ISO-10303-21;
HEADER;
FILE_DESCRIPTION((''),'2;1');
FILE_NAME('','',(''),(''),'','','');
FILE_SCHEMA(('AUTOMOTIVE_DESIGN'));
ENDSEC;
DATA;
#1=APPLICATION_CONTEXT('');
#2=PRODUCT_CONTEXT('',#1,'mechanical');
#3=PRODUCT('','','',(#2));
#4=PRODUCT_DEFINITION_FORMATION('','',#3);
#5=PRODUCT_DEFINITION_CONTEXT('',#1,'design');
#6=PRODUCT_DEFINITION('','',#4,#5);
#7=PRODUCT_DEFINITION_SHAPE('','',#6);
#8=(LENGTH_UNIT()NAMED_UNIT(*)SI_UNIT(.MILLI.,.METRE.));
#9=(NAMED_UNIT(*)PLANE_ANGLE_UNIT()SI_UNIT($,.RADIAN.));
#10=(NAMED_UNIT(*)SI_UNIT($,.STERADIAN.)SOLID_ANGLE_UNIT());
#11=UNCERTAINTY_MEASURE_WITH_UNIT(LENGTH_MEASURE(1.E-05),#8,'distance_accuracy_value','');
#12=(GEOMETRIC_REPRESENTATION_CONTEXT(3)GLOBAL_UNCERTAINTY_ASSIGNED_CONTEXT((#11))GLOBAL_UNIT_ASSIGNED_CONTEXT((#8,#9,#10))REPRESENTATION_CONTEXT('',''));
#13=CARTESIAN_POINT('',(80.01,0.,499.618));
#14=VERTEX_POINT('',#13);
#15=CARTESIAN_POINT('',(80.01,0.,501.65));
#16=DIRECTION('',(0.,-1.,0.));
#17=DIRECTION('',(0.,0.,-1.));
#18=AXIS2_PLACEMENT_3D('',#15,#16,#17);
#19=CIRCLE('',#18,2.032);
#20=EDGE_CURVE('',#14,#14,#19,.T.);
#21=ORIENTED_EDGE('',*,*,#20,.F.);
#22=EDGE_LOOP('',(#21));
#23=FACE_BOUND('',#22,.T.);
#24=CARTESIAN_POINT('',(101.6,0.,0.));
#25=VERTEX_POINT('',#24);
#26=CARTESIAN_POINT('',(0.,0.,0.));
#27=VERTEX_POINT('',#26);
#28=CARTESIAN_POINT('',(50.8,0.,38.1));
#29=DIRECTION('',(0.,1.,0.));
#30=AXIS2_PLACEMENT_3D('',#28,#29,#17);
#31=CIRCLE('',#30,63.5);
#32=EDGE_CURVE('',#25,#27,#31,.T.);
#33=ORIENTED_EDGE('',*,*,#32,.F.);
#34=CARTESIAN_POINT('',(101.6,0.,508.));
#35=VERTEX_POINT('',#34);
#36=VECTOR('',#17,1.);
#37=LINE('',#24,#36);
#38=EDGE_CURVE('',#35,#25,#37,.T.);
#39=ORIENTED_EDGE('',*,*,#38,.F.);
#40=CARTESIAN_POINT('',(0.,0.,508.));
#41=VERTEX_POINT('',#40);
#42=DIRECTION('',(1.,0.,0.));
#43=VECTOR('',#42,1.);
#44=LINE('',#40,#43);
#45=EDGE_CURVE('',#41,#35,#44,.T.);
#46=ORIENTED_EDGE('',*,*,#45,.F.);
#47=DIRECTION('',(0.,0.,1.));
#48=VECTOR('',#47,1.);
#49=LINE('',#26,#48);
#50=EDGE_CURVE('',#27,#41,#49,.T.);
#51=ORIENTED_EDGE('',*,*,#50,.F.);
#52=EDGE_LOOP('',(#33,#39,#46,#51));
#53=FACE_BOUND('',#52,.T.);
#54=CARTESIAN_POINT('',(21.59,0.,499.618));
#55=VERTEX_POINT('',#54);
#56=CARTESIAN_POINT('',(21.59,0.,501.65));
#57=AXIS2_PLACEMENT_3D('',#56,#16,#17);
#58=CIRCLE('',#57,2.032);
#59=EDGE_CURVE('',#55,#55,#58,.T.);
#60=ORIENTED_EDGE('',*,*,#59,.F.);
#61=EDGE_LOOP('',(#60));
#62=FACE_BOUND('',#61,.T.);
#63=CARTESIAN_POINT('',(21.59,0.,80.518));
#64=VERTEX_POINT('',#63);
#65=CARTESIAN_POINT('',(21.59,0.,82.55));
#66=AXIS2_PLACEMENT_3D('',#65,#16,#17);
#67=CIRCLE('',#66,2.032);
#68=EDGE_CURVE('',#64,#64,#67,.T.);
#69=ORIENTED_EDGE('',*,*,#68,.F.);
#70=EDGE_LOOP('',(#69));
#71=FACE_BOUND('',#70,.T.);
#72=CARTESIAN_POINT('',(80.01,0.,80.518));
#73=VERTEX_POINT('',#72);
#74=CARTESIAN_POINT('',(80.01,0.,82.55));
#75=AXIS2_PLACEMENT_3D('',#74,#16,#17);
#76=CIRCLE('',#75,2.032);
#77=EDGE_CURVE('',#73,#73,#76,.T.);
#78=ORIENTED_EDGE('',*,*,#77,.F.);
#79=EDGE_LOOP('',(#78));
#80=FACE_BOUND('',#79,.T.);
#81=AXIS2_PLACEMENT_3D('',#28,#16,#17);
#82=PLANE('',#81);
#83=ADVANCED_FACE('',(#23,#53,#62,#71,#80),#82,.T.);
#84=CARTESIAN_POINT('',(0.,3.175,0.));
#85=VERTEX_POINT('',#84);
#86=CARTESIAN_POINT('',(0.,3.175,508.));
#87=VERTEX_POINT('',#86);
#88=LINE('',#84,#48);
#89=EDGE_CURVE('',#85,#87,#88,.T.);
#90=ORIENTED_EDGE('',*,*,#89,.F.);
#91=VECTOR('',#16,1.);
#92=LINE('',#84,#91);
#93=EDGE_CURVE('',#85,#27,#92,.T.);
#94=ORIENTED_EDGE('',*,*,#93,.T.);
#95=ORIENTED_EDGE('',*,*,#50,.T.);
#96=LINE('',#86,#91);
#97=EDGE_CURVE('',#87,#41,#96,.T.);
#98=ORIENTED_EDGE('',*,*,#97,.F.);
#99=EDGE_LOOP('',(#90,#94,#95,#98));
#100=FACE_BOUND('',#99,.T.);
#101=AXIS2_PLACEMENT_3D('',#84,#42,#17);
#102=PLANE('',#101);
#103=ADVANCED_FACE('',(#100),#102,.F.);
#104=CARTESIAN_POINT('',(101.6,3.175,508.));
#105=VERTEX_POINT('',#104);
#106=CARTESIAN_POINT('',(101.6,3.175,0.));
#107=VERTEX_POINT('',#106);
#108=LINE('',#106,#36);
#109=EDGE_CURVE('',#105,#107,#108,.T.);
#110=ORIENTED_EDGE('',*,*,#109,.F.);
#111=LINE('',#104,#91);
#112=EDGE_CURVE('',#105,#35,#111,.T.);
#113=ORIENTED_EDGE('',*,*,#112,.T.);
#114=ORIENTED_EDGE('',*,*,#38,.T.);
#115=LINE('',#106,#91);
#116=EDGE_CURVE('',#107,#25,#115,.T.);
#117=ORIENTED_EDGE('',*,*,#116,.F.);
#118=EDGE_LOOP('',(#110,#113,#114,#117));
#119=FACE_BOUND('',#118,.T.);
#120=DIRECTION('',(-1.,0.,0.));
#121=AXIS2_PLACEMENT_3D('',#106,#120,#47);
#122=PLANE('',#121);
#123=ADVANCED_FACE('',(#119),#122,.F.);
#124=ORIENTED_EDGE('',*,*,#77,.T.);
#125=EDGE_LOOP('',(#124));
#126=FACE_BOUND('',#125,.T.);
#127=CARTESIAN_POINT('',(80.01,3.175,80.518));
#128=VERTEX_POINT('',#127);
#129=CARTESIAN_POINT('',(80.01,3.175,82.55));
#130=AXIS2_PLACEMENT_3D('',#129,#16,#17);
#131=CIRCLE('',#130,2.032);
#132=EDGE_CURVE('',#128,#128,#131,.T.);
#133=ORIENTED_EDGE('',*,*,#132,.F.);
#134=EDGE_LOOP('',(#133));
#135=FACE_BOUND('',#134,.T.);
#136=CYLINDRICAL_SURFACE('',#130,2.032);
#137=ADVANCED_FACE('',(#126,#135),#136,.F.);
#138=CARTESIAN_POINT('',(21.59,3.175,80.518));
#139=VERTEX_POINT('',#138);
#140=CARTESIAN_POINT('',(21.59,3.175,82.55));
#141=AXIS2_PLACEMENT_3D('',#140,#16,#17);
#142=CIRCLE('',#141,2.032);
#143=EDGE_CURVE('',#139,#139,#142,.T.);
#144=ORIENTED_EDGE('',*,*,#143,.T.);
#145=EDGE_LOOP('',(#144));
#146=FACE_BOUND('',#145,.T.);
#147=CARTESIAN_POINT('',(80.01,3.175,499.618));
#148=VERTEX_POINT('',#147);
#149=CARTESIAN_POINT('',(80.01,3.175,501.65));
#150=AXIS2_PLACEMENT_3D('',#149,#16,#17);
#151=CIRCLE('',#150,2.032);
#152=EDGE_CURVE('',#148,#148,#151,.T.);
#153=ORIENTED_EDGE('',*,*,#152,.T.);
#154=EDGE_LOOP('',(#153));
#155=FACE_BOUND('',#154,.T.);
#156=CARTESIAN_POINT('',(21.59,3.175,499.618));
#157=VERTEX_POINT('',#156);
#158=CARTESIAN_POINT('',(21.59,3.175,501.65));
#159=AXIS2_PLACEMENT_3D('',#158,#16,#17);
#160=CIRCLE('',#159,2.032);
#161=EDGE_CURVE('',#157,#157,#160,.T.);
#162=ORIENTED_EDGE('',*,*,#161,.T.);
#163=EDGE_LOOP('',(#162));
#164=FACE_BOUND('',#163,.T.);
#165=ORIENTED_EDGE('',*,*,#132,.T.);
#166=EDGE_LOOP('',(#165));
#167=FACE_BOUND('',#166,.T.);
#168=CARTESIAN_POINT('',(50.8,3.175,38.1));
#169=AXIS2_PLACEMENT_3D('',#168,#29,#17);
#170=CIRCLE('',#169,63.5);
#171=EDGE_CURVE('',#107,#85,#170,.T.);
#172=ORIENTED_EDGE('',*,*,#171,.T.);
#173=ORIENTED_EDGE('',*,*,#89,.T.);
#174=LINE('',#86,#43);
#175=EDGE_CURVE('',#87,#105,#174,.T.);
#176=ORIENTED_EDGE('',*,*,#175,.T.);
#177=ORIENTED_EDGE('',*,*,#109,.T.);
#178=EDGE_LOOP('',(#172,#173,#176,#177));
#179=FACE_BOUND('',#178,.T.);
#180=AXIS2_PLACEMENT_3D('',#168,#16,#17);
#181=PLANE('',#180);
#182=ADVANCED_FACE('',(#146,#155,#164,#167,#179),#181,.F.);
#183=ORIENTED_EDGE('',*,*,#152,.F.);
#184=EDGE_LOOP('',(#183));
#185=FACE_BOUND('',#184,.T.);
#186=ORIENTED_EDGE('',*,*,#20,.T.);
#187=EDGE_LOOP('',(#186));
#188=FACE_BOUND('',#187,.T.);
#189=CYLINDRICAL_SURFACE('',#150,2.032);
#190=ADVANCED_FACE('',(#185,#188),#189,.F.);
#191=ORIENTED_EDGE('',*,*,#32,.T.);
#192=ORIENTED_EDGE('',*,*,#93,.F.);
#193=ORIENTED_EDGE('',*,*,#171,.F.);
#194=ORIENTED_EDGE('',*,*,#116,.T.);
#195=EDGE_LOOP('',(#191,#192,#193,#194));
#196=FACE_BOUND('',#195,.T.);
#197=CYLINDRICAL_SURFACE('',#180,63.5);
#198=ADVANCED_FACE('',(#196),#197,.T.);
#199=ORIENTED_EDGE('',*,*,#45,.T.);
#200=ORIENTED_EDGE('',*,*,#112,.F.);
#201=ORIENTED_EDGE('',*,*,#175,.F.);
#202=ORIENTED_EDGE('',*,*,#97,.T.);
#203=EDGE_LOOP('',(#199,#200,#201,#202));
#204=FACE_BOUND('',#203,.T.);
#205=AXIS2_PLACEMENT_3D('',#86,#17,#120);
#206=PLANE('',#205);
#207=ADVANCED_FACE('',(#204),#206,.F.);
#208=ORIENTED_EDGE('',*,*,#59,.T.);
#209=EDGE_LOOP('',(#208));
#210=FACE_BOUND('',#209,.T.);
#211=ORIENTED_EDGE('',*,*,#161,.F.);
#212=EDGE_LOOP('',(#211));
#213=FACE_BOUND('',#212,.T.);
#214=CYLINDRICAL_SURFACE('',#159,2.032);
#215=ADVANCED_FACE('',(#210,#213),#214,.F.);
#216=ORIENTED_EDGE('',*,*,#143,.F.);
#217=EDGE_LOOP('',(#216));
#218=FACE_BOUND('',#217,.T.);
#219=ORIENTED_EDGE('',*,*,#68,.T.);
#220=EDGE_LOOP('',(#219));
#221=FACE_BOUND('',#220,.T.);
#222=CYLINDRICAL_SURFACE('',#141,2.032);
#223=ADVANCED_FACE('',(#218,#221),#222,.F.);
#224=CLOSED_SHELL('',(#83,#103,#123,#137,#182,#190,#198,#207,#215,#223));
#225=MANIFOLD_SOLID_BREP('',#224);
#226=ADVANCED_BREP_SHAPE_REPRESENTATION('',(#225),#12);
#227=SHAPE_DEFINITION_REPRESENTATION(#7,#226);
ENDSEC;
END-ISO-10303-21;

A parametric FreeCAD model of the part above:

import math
import FreeCAD as App
import Part
import Sketcher
from FreeCAD import Vector
Q = App.Units.Quantity

doc = App.newDocument("Part")
body = doc.addObject("PartDesign::Body", "Body")

sketch1 = body.newObject("Sketcher::SketchObject", "Sketch")
sketch1.AttachmentSupport = (doc.getObject("XZ_Plane"), [""])
sketch1.MapMode = "FlatFace"
sketch1.addGeometry(Part.LineSegment(Vector(0, 0, 0), Vector(0, 508, 0)), False)
sketch1.addGeometry(Part.LineSegment(Vector(0, 508, 0), Vector(101.6, 508, 0)), False)
sketch1.addGeometry(Part.LineSegment(Vector(101.6, 508, 0), Vector(101.6, 0, 0)), False)
sketch1.addGeometry(Part.ArcOfCircle(Part.Circle(Vector(50.8, 38.1, 0), Vector(0, 0, 1), 63.5), math.radians(-143.130102), math.radians(-36.869898)), False)
sketch1.addConstraint(Sketcher.Constraint("Coincident", 0, 2, 1, 1))
sketch1.addConstraint(Sketcher.Constraint("Coincident", 1, 2, 2, 1))
sketch1.addConstraint(Sketcher.Constraint("Coincident", 2, 2, 3, 2))
sketch1.addConstraint(Sketcher.Constraint("Coincident", 3, 1, 0, 1))
sketch1.addConstraint(Sketcher.Constraint("Vertical", 0))
sketch1.addConstraint(Sketcher.Constraint("Horizontal", 1))
sketch1.addConstraint(Sketcher.Constraint("Vertical", 2))
sketch1.addConstraint(Sketcher.Constraint("Coincident", 3, 1, -1, 1))
sketch1.addConstraint(Sketcher.Constraint("PointOnObject", 2, 2, -1))
sketch1.addConstraint(Sketcher.Constraint("Radius", 3, Q("2.5 in")))
sketch1.addConstraint(Sketcher.Constraint("DistanceX", 1, 1, 1, 2, Q("4 in")))
sketch1.addConstraint(Sketcher.Constraint("DistanceY", 0, 1, 0, 2, Q("20 in")))
pad1 = body.newObject("PartDesign::Pad", "Pad")
pad1.Profile = sketch1
pad1.Length = Q("0.125 in")
pad1.Reversed = True

sketch2 = body.newObject("Sketcher::SketchObject", "Sketch001")
sketch2.AttachmentSupport = (doc.getObject("XZ_Plane"), [""])
sketch2.MapMode = "FlatFace"
sketch2.addGeometry(Part.Circle(Vector(21.59, 501.65, 0), Vector(0, 0, 1), 2.032), False)
sketch2.addGeometry(Part.Circle(Vector(80.01, 501.65, 0), Vector(0, 0, 1), 2.032), False)
sketch2.addGeometry(Part.Circle(Vector(21.59, 82.55, 0), Vector(0, 0, 1), 2.032), False)
sketch2.addGeometry(Part.Circle(Vector(80.01, 82.55, 0), Vector(0, 0, 1), 2.032), False)
sketch2.addConstraint(Sketcher.Constraint("Equal", 0, 1))
sketch2.addConstraint(Sketcher.Constraint("Equal", 1, 2))
sketch2.addConstraint(Sketcher.Constraint("Equal", 2, 3))
sketch2.addConstraint(Sketcher.Constraint("Horizontal", 0, 3, 1, 3))
sketch2.addConstraint(Sketcher.Constraint("Horizontal", 2, 3, 3, 3))
sketch2.addConstraint(Sketcher.Constraint("Vertical", 0, 3, 2, 3))
sketch2.addConstraint(Sketcher.Constraint("Vertical", 1, 3, 3, 3))
sketch2.addConstraint(Sketcher.Constraint("Diameter", 0, Q("0.16 in")))
sketch2.addConstraint(Sketcher.Constraint("DistanceX", 0, 3, 1, 3, Q("2.3 in")))
sketch2.addConstraint(Sketcher.Constraint("DistanceY", 2, 3, 0, 3, Q("16.5 in")))
sketch2.addConstraint(Sketcher.Constraint("DistanceX", -1, 1, 0, 3, Q("0.85 in")))
sketch2.addConstraint(Sketcher.Constraint("DistanceY", -1, 1, 0, 3, Q("19.75 in")))
pocket1 = body.newObject("PartDesign::Pocket", "Pocket")
pocket1.Profile = sketch2
pocket1.Type = "ThroughAll"

doc.recompute()
